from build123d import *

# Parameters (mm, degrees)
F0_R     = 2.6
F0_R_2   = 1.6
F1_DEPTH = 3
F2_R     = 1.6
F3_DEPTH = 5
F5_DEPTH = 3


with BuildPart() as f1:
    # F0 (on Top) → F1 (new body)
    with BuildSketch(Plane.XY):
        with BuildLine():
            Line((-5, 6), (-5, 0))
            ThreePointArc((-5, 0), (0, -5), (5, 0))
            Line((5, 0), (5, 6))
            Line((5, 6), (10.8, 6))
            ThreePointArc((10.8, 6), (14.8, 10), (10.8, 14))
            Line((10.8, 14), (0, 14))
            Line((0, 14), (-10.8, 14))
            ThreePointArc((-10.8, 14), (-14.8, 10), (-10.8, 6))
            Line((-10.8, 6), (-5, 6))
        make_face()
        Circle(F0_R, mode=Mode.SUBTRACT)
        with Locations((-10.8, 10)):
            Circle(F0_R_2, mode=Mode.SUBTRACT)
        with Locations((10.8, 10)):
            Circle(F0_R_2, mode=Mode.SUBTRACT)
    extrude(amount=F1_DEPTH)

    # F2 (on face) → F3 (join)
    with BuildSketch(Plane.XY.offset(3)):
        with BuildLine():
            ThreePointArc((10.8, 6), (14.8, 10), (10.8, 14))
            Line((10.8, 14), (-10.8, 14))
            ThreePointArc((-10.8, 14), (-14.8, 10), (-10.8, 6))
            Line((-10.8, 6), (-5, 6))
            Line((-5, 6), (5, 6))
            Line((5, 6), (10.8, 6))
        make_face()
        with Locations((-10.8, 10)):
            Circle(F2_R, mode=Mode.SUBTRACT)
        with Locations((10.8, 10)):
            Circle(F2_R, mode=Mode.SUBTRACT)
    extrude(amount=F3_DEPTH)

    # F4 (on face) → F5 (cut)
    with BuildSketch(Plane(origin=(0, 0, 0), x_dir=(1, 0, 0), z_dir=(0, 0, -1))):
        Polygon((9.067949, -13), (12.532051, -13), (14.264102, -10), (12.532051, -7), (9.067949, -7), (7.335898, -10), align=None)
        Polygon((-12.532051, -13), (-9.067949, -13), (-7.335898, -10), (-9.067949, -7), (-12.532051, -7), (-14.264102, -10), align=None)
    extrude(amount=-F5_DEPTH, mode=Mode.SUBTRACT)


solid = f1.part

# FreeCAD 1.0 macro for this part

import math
import FreeCAD as App
import Part
import Sketcher
Q = App.Units.Quantity

doc = App.newDocument("Part")
body = doc.addObject("PartDesign::Body", "Body")

sketch1 = body.newObject("Sketcher::SketchObject", "Sketch")
sketch1.AttachmentSupport = (doc.getObject("XY_Plane"), [""])
sketch1.MapMode = "FlatFace"
sketch1.addGeometry([
    Part.LineSegment(App.Vector(-5, 6, 0), App.Vector(-5, 0, 0)),
    Part.ArcOfCircle(Part.Circle(App.Vector(0, 0, 0), App.Vector(0, 0, 1), 5), math.radians(180), math.radians(360)),
    Part.LineSegment(App.Vector(5, 0, 0), App.Vector(5, 6, 0)),
    Part.LineSegment(App.Vector(5, 6, 0), App.Vector(10.8, 6, 0)),
    Part.ArcOfCircle(Part.Circle(App.Vector(10.8, 10, 0), App.Vector(0, 0, 1), 4), math.radians(-90), math.radians(90)),
    Part.LineSegment(App.Vector(10.8, 14, 0), App.Vector(-10.8, 14, 0)),
    Part.ArcOfCircle(Part.Circle(App.Vector(-10.8, 10, 0), App.Vector(0, 0, 1), 4), math.radians(90), math.radians(270)),
    Part.LineSegment(App.Vector(-10.8, 6, 0), App.Vector(-5, 6, 0)),
    Part.Circle(App.Vector(0, 0, 0), App.Vector(0, 0, 1), 2.6),
    Part.Circle(App.Vector(-10.8, 10, 0), App.Vector(0, 0, 1), 1.6),
    Part.Circle(App.Vector(10.8, 10, 0), App.Vector(0, 0, 1), 1.6),
], False)
sketch1.addConstraint([
    Sketcher.Constraint("Tangent", 0, 2, 1, 1),
    Sketcher.Constraint("Tangent", 1, 2, 2, 1),
    Sketcher.Constraint("Coincident", 2, 2, 3, 1),
    Sketcher.Constraint("Tangent", 3, 2, 4, 1),
    Sketcher.Constraint("Tangent", 4, 2, 5, 1),
    Sketcher.Constraint("Tangent", 5, 2, 6, 1),
    Sketcher.Constraint("Tangent", 6, 2, 7, 1),
    Sketcher.Constraint("Coincident", 7, 2, 0, 1),
    Sketcher.Constraint("Vertical", 0),
    Sketcher.Constraint("Vertical", 2),
    Sketcher.Constraint("Horizontal", 3),
    Sketcher.Constraint("Horizontal", 5),
    Sketcher.Constraint("Horizontal", 7),
    Sketcher.Constraint("Coincident", 1, 3, -1, 1),
    Sketcher.Constraint("Coincident", 8, 3, -1, 1),
    Sketcher.Constraint("Coincident", 9, 3, 6, 3),
    Sketcher.Constraint("Coincident", 10, 3, 4, 3),
    Sketcher.Constraint("Equal", 4, 6),
    Sketcher.Constraint("Equal", 9, 10),
    Sketcher.Constraint("Equal", 3, 7),
    Sketcher.Constraint("Radius", 1, 5.0),
    Sketcher.Constraint("Radius", 4, 4.0),
    Sketcher.Constraint("Diameter", 8, 5.2),
    Sketcher.Constraint("Diameter", 9, 3.2),
    Sketcher.Constraint("DistanceY", 0, 2, 0, 1, 6.0),
    Sketcher.Constraint("DistanceX", 3, 1, 3, 2, 5.8),
])
pad1 = body.newObject("PartDesign::Pad", "Pad")
pad1.Profile = sketch1
pad1.Length = 3

sketch2 = body.newObject("Sketcher::SketchObject", "Sketch001")
sketch2.AttachmentSupport = (doc.getObject("XY_Plane"), [""])
sketch2.MapMode = "FlatFace"
sketch2.AttachmentOffset = App.Placement(App.Vector(0, 0, 3), App.Rotation())
sketch2.addGeometry([
    Part.ArcOfCircle(Part.Circle(App.Vector(10.8, 10, 0), App.Vector(0, 0, 1), 4), math.radians(-90), math.radians(90)),
    Part.LineSegment(App.Vector(10.8, 14, 0), App.Vector(-10.8, 14, 0)),
    Part.ArcOfCircle(Part.Circle(App.Vector(-10.8, 10, 0), App.Vector(0, 0, 1), 4), math.radians(90), math.radians(270)),
    Part.LineSegment(App.Vector(-10.8, 6, 0), App.Vector(10.8, 6, 0)),
    Part.Circle(App.Vector(-10.8, 10, 0), App.Vector(0, 0, 1), 1.6),
    Part.Circle(App.Vector(10.8, 10, 0), App.Vector(0, 0, 1), 1.6),
], False)
sketch2.addConstraint([
    Sketcher.Constraint("Tangent", 0, 2, 1, 1),
    Sketcher.Constraint("Tangent", 1, 2, 2, 1),
    Sketcher.Constraint("Tangent", 2, 2, 3, 1),
    Sketcher.Constraint("Tangent", 3, 2, 0, 1),
    Sketcher.Constraint("Horizontal", 1),
    Sketcher.Constraint("Horizontal", 3),
    Sketcher.Constraint("Coincident", 4, 3, 2, 3),
    Sketcher.Constraint("Coincident", 5, 3, 0, 3),
    Sketcher.Constraint("Equal", 4, 5),
    Sketcher.Constraint("Radius", 0, 4.0),
    Sketcher.Constraint("Diameter", 4, 3.2),
    Sketcher.Constraint("DistanceX", 1, 2, 1, 1, 21.6),
    Sketcher.Constraint("DistanceY", -1, 1, 0, 3, 10.0),
    Sketcher.Constraint("DistanceX", -1, 1, 0, 3, 10.8),
])
pad2 = body.newObject("PartDesign::Pad", "Pad001")
pad2.Profile = sketch2
pad2.Length = 5

sketch3 = body.newObject("Sketcher::SketchObject", "Sketch002")
sketch3.AttachmentSupport = (doc.getObject("XY_Plane"), [""])
sketch3.MapMode = "FlatFace"
sketch3.addGeometry([
    Part.LineSegment(App.Vector(9.1, 13, 0), App.Vector(12.5, 13, 0)),
    Part.LineSegment(App.Vector(12.5, 13, 0), App.Vector(14.3, 10, 0)),
    Part.LineSegment(App.Vector(14.3, 10, 0), App.Vector(12.5, 7, 0)),
    Part.LineSegment(App.Vector(12.5, 7, 0), App.Vector(9.1, 7, 0)),
    Part.LineSegment(App.Vector(9.1, 7, 0), App.Vector(7.3, 10, 0)),
    Part.LineSegment(App.Vector(7.3, 10, 0), App.Vector(9.1, 13, 0)),
    Part.LineSegment(App.Vector(-12.5, 13, 0), App.Vector(-9.1, 13, 0)),
    Part.LineSegment(App.Vector(-9.1, 13, 0), App.Vector(-7.3, 10, 0)),
    Part.LineSegment(App.Vector(-7.3, 10, 0), App.Vector(-9.1, 7, 0)),
    Part.LineSegment(App.Vector(-9.1, 7, 0), App.Vector(-12.5, 7, 0)),
    Part.LineSegment(App.Vector(-12.5, 7, 0), App.Vector(-14.3, 10, 0)),
    Part.LineSegment(App.Vector(-14.3, 10, 0), App.Vector(-12.5, 13, 0)),
], False)
sketch3.addConstraint([
    Sketcher.Constraint("Coincident", 0, 2, 1, 1),
    Sketcher.Constraint("Coincident", 1, 2, 2, 1),
    Sketcher.Constraint("Coincident", 2, 2, 3, 1),
    Sketcher.Constraint("Coincident", 3, 2, 4, 1),
    Sketcher.Constraint("Coincident", 4, 2, 5, 1),
    Sketcher.Constraint("Coincident", 5, 2, 0, 1),
    Sketcher.Constraint("Coincident", 6, 2, 7, 1),
    Sketcher.Constraint("Coincident", 7, 2, 8, 1),
    Sketcher.Constraint("Coincident", 8, 2, 9, 1),
    Sketcher.Constraint("Coincident", 9, 2, 10, 1),
    Sketcher.Constraint("Coincident", 10, 2, 11, 1),
    Sketcher.Constraint("Coincident", 11, 2, 6, 1),
    Sketcher.Constraint("Horizontal", 0),
    Sketcher.Constraint("Horizontal", 3),
    Sketcher.Constraint("Horizontal", 6),
    Sketcher.Constraint("Horizontal", 9),
    Sketcher.Constraint("Symmetric", 5, 2, 6, 2, -2),
    Sketcher.Constraint("Symmetric", 4, 2, 7, 2, -2),
    Sketcher.Constraint("Symmetric", 3, 2, 8, 2, -2),
    Sketcher.Constraint("Symmetric", 1, 2, 10, 2, -2),
    Sketcher.Constraint("Parallel", 1, 4),
    Sketcher.Constraint("Parallel", 2, 5),
    Sketcher.Constraint("Parallel", 4, 7),
    Sketcher.Constraint("Parallel", 7, 10),
    Sketcher.Constraint("Parallel", 8, 11),
    Sketcher.Constraint("Horizontal", 1, 2, 4, 2),
    Sketcher.Constraint("Vertical", 0, 2, 2, 2),
    Sketcher.Constraint("Angle", 1, Q("-59.999997 deg")),
    Sketcher.Constraint("DistanceY", -1, 1, 0, 2, 13.0),
    Sketcher.Constraint("DistanceY", -1, 1, 1, 2, 10.0),
    Sketcher.Constraint("DistanceX", 6, 2, 0, 2, 21.6),
    Sketcher.Constraint("DistanceX", 0, 1, 0, 2, 3.464102),
])
pocket1 = body.newObject("PartDesign::Pocket", "Pocket")
pocket1.Profile = sketch3
pocket1.Length = 3
pocket1.Reversed = True

doc.recompute()
